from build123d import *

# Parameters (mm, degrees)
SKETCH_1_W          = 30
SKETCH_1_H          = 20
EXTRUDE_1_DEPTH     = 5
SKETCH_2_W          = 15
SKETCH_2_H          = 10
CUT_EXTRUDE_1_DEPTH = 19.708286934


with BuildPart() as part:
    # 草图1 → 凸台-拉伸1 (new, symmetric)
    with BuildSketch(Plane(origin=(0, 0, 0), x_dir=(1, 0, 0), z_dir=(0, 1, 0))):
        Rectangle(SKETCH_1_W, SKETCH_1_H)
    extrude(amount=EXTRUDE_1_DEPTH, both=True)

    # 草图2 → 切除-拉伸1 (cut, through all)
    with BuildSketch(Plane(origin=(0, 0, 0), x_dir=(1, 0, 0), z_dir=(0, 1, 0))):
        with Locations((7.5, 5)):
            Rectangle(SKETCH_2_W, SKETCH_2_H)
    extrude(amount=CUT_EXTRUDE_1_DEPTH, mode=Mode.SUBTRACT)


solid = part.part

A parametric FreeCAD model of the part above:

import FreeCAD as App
import Part
import Sketcher
from FreeCAD import Vector

doc = App.newDocument("Part")
params = doc.addObject("Spreadsheet::Sheet", "Params")
for row, (alias, value) in enumerate([
    ("sketch1_width", "30 mm"),
    ("sketch1_height", "20 mm"),
    ("pad1_length", "10 mm"),
    ("sketch2_width", "15 mm"),
    ("sketch2_height", "10 mm"),
], start=1):
    params.set(f"A{row}", alias)
    params.set(f"B{row}", "=" + value)
    params.setAlias(f"B{row}", alias)

body = doc.addObject("PartDesign::Body", "Body")

# Sketch on XZ plane
sketch1 = doc.addObject("Sketcher::SketchObject", "Sketch")
body.addObject(sketch1)
sketch1.AttachmentSupport = (doc.XZ_Plane, [""])
sketch1.MapMode = "FlatFace"
sketch1.addGeometry(Part.LineSegment(Vector(-15, -10, 0), Vector(-15, 10, 0)), False)
sketch1.addGeometry(Part.LineSegment(Vector(-15, 10, 0), Vector(15, 10, 0)), False)
sketch1.addGeometry(Part.LineSegment(Vector(15, 10, 0), Vector(15, -10, 0)), False)
sketch1.addGeometry(Part.LineSegment(Vector(15, -10, 0), Vector(-15, -10, 0)), False)
sketch1.addConstraint(Sketcher.Constraint("Coincident", 0, 2, 1, 1))
sketch1.addConstraint(Sketcher.Constraint("Coincident", 1, 2, 2, 1))
sketch1.addConstraint(Sketcher.Constraint("Coincident", 2, 2, 3, 1))
sketch1.addConstraint(Sketcher.Constraint("Coincident", 3, 2, 0, 1))
sketch1.addConstraint(Sketcher.Constraint("Vertical", 0))
sketch1.addConstraint(Sketcher.Constraint("Horizontal", 1))
sketch1.addConstraint(Sketcher.Constraint("Vertical", 2))
sketch1.addConstraint(Sketcher.Constraint("Horizontal", 3))
sketch1.addConstraint(Sketcher.Constraint("Symmetric", 0, 2, 2, 2, -1, 1))
sketch1.addConstraint(Sketcher.Constraint("DistanceX", 1, 1, 1, 2, 30.0))
sketch1.addConstraint(Sketcher.Constraint("DistanceY", 0, 1, 0, 2, 20.0))
sketch1.setExpression("Constraints[9]", "Params.sketch1_width")
sketch1.setExpression("Constraints[10]", "Params.sketch1_height")
pad1 = doc.addObject("PartDesign::Pad", "Pad")
body.addObject(pad1)
pad1.Profile = sketch1
pad1.setExpression("Length", "Params.pad1_length")
pad1.Midplane = True

# Sketch on XZ plane
sketch2 = doc.addObject("Sketcher::SketchObject", "Sketch001")
body.addObject(sketch2)
sketch2.AttachmentSupport = (doc.XZ_Plane, [""])
sketch2.MapMode = "FlatFace"
sketch2.addGeometry(Part.LineSegment(Vector(0, -10, 0), Vector(0, 0, 0)), False)
sketch2.addGeometry(Part.LineSegment(Vector(0, 0, 0), Vector(15, 0, 0)), False)
sketch2.addGeometry(Part.LineSegment(Vector(15, 0, 0), Vector(15, -10, 0)), False)
sketch2.addGeometry(Part.LineSegment(Vector(15, -10, 0), Vector(0, -10, 0)), False)
sketch2.addConstraint(Sketcher.Constraint("Coincident", 0, 2, 1, 1))
sketch2.addConstraint(Sketcher.Constraint("Coincident", 1, 2, 2, 1))
sketch2.addConstraint(Sketcher.Constraint("Coincident", 2, 2, 3, 1))
sketch2.addConstraint(Sketcher.Constraint("Coincident", 3, 2, 0, 1))
sketch2.addConstraint(Sketcher.Constraint("Vertical", 0))
sketch2.addConstraint(Sketcher.Constraint("Horizontal", 1))
sketch2.addConstraint(Sketcher.Constraint("Vertical", 2))
sketch2.addConstraint(Sketcher.Constraint("Horizontal", 3))
sketch2.addConstraint(Sketcher.Constraint("Coincident", 0, 2, -1, 1))
sketch2.addConstraint(Sketcher.Constraint("DistanceX", 1, 1, 1, 2, 15.0))
sketch2.addConstraint(Sketcher.Constraint("DistanceY", 0, 1, 0, 2, 10.0))
sketch2.setExpression("Constraints[9]", "Params.sketch2_width")
sketch2.setExpression("Constraints[10]", "Params.sketch2_height")
pocket1 = doc.addObject("PartDesign::Pocket", "Pocket")
body.addObject(pocket1)
pocket1.Profile = sketch2
pocket1.Type = "ThroughAll"

doc.recompute()
